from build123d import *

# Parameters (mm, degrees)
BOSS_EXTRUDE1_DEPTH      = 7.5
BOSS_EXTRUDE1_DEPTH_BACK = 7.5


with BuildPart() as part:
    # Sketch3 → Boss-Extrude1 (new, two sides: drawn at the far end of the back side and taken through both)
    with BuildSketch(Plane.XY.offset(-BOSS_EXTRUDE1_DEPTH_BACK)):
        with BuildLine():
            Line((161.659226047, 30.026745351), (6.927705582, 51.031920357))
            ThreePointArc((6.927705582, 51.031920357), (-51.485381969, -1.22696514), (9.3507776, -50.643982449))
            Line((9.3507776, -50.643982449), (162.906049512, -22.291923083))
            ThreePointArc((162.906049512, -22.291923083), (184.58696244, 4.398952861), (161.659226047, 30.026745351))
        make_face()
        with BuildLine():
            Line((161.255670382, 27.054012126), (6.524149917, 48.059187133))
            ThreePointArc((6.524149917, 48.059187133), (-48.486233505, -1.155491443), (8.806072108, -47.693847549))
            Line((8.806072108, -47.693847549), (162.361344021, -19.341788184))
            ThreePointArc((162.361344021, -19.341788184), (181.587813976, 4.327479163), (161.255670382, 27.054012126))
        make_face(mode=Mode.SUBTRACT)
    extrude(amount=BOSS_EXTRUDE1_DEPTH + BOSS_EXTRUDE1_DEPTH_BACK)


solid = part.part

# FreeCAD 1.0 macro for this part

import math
import FreeCAD as App
import Part
import Sketcher

V = App.Vector

doc = App.newDocument("Part")
body = doc.addObject("PartDesign::Body", "Body")

sketch1 = body.newObject("Sketcher::SketchObject", "Sketch")
sketch1.AttachmentSupport = (doc.getObject("XY_Plane"), [""])
sketch1.MapMode = "FlatFace"
sketch1.addGeometry([
    Part.LineSegment(V(161.659226, 30.026745, 0), V(6.927706, 51.03192, 0)),
    Part.ArcOfCircle(Part.Circle(V(0, 0, 0), V(0, 0, 1), 51.5), math.radians(82.269219), math.radians(280.461134)),
    Part.LineSegment(V(9.350778, -50.643982, 0), V(162.90605, -22.291923, 0)),
    Part.ArcOfCircle(Part.Circle(V(158.094484, 3.767602, 0), V(0, 0, 1), 26.5), math.radians(-79.538866), math.radians(82.269219)),
    Part.LineSegment(V(6.52415, 48.059187, 0), V(161.25567, 27.054012, 0)),
    Part.ArcOfCircle(Part.Circle(V(158.094484, 3.767602, 0), V(0, 0, 1), 23.5), math.radians(-79.538866), math.radians(82.269219)),
    Part.LineSegment(V(162.361344, -19.341788, 0), V(8.806072, -47.693848, 0)),
    Part.ArcOfCircle(Part.Circle(V(0, 0, 0), V(0, 0, 1), 48.5), math.radians(82.269219), math.radians(280.461134)),
], False)
sketch1.addConstraint([
    Sketcher.Constraint("Coincident", 0, 2, 1, 1),
    Sketcher.Constraint("Coincident", 1, 2, 2, 1),
    Sketcher.Constraint("Coincident", 2, 2, 3, 1),
    Sketcher.Constraint("Coincident", 3, 2, 0, 1),
    Sketcher.Constraint("Coincident", 4, 2, 5, 2),
    Sketcher.Constraint("Coincident", 5, 1, 6, 1),
    Sketcher.Constraint("Coincident", 6, 2, 7, 2),
    Sketcher.Constraint("Coincident", 7, 1, 4, 1),
    Sketcher.Constraint("Coincident", 1, 3, -1, 1),
    Sketcher.Constraint("Coincident", 7, 3, -1, 1),
    Sketcher.Constraint("Coincident", 5, 3, 3, 3),
    Sketcher.Constraint("Radius", 1, 51.5),
    Sketcher.Constraint("Radius", 3, 26.5),
    Sketcher.Constraint("Radius", 5, 23.5),
    Sketcher.Constraint("Radius", 7, 48.5),
    Sketcher.Constraint("DistanceY", -1, 1, 3, 3, 3.767602),
    Sketcher.Constraint("DistanceY", 5, 1, 4, 2, 46.3958),
    Sketcher.Constraint("DistanceY", -1, 1, 0, 2, 51.03192),
    Sketcher.Constraint("DistanceX", -1, 1, 2, 2, 162.90605),
    Sketcher.Constraint("DistanceX", -1, 1, 4, 2, 161.25567),
    Sketcher.Constraint("DistanceY", 5, 1, -1, 1, 19.341788),
    Sketcher.Constraint("DistanceX", -1, 1, 7, 1, 6.52415),
    Sketcher.Constraint("DistanceX", 1, 2, 2, 2, 153.555272),
    Sketcher.Constraint("DistanceX", 3, 3, 3, 2, 3.564742),
    Sketcher.Constraint("DistanceX", 6, 2, 5, 1, 153.555272),
])
pad1 = body.newObject("PartDesign::Pad", "Pad")
pad1.Profile = sketch1
pad1.Type = "TwoLengths"
pad1.Length = 7.5
pad1.Length2 = 7.5

doc.recompute()
